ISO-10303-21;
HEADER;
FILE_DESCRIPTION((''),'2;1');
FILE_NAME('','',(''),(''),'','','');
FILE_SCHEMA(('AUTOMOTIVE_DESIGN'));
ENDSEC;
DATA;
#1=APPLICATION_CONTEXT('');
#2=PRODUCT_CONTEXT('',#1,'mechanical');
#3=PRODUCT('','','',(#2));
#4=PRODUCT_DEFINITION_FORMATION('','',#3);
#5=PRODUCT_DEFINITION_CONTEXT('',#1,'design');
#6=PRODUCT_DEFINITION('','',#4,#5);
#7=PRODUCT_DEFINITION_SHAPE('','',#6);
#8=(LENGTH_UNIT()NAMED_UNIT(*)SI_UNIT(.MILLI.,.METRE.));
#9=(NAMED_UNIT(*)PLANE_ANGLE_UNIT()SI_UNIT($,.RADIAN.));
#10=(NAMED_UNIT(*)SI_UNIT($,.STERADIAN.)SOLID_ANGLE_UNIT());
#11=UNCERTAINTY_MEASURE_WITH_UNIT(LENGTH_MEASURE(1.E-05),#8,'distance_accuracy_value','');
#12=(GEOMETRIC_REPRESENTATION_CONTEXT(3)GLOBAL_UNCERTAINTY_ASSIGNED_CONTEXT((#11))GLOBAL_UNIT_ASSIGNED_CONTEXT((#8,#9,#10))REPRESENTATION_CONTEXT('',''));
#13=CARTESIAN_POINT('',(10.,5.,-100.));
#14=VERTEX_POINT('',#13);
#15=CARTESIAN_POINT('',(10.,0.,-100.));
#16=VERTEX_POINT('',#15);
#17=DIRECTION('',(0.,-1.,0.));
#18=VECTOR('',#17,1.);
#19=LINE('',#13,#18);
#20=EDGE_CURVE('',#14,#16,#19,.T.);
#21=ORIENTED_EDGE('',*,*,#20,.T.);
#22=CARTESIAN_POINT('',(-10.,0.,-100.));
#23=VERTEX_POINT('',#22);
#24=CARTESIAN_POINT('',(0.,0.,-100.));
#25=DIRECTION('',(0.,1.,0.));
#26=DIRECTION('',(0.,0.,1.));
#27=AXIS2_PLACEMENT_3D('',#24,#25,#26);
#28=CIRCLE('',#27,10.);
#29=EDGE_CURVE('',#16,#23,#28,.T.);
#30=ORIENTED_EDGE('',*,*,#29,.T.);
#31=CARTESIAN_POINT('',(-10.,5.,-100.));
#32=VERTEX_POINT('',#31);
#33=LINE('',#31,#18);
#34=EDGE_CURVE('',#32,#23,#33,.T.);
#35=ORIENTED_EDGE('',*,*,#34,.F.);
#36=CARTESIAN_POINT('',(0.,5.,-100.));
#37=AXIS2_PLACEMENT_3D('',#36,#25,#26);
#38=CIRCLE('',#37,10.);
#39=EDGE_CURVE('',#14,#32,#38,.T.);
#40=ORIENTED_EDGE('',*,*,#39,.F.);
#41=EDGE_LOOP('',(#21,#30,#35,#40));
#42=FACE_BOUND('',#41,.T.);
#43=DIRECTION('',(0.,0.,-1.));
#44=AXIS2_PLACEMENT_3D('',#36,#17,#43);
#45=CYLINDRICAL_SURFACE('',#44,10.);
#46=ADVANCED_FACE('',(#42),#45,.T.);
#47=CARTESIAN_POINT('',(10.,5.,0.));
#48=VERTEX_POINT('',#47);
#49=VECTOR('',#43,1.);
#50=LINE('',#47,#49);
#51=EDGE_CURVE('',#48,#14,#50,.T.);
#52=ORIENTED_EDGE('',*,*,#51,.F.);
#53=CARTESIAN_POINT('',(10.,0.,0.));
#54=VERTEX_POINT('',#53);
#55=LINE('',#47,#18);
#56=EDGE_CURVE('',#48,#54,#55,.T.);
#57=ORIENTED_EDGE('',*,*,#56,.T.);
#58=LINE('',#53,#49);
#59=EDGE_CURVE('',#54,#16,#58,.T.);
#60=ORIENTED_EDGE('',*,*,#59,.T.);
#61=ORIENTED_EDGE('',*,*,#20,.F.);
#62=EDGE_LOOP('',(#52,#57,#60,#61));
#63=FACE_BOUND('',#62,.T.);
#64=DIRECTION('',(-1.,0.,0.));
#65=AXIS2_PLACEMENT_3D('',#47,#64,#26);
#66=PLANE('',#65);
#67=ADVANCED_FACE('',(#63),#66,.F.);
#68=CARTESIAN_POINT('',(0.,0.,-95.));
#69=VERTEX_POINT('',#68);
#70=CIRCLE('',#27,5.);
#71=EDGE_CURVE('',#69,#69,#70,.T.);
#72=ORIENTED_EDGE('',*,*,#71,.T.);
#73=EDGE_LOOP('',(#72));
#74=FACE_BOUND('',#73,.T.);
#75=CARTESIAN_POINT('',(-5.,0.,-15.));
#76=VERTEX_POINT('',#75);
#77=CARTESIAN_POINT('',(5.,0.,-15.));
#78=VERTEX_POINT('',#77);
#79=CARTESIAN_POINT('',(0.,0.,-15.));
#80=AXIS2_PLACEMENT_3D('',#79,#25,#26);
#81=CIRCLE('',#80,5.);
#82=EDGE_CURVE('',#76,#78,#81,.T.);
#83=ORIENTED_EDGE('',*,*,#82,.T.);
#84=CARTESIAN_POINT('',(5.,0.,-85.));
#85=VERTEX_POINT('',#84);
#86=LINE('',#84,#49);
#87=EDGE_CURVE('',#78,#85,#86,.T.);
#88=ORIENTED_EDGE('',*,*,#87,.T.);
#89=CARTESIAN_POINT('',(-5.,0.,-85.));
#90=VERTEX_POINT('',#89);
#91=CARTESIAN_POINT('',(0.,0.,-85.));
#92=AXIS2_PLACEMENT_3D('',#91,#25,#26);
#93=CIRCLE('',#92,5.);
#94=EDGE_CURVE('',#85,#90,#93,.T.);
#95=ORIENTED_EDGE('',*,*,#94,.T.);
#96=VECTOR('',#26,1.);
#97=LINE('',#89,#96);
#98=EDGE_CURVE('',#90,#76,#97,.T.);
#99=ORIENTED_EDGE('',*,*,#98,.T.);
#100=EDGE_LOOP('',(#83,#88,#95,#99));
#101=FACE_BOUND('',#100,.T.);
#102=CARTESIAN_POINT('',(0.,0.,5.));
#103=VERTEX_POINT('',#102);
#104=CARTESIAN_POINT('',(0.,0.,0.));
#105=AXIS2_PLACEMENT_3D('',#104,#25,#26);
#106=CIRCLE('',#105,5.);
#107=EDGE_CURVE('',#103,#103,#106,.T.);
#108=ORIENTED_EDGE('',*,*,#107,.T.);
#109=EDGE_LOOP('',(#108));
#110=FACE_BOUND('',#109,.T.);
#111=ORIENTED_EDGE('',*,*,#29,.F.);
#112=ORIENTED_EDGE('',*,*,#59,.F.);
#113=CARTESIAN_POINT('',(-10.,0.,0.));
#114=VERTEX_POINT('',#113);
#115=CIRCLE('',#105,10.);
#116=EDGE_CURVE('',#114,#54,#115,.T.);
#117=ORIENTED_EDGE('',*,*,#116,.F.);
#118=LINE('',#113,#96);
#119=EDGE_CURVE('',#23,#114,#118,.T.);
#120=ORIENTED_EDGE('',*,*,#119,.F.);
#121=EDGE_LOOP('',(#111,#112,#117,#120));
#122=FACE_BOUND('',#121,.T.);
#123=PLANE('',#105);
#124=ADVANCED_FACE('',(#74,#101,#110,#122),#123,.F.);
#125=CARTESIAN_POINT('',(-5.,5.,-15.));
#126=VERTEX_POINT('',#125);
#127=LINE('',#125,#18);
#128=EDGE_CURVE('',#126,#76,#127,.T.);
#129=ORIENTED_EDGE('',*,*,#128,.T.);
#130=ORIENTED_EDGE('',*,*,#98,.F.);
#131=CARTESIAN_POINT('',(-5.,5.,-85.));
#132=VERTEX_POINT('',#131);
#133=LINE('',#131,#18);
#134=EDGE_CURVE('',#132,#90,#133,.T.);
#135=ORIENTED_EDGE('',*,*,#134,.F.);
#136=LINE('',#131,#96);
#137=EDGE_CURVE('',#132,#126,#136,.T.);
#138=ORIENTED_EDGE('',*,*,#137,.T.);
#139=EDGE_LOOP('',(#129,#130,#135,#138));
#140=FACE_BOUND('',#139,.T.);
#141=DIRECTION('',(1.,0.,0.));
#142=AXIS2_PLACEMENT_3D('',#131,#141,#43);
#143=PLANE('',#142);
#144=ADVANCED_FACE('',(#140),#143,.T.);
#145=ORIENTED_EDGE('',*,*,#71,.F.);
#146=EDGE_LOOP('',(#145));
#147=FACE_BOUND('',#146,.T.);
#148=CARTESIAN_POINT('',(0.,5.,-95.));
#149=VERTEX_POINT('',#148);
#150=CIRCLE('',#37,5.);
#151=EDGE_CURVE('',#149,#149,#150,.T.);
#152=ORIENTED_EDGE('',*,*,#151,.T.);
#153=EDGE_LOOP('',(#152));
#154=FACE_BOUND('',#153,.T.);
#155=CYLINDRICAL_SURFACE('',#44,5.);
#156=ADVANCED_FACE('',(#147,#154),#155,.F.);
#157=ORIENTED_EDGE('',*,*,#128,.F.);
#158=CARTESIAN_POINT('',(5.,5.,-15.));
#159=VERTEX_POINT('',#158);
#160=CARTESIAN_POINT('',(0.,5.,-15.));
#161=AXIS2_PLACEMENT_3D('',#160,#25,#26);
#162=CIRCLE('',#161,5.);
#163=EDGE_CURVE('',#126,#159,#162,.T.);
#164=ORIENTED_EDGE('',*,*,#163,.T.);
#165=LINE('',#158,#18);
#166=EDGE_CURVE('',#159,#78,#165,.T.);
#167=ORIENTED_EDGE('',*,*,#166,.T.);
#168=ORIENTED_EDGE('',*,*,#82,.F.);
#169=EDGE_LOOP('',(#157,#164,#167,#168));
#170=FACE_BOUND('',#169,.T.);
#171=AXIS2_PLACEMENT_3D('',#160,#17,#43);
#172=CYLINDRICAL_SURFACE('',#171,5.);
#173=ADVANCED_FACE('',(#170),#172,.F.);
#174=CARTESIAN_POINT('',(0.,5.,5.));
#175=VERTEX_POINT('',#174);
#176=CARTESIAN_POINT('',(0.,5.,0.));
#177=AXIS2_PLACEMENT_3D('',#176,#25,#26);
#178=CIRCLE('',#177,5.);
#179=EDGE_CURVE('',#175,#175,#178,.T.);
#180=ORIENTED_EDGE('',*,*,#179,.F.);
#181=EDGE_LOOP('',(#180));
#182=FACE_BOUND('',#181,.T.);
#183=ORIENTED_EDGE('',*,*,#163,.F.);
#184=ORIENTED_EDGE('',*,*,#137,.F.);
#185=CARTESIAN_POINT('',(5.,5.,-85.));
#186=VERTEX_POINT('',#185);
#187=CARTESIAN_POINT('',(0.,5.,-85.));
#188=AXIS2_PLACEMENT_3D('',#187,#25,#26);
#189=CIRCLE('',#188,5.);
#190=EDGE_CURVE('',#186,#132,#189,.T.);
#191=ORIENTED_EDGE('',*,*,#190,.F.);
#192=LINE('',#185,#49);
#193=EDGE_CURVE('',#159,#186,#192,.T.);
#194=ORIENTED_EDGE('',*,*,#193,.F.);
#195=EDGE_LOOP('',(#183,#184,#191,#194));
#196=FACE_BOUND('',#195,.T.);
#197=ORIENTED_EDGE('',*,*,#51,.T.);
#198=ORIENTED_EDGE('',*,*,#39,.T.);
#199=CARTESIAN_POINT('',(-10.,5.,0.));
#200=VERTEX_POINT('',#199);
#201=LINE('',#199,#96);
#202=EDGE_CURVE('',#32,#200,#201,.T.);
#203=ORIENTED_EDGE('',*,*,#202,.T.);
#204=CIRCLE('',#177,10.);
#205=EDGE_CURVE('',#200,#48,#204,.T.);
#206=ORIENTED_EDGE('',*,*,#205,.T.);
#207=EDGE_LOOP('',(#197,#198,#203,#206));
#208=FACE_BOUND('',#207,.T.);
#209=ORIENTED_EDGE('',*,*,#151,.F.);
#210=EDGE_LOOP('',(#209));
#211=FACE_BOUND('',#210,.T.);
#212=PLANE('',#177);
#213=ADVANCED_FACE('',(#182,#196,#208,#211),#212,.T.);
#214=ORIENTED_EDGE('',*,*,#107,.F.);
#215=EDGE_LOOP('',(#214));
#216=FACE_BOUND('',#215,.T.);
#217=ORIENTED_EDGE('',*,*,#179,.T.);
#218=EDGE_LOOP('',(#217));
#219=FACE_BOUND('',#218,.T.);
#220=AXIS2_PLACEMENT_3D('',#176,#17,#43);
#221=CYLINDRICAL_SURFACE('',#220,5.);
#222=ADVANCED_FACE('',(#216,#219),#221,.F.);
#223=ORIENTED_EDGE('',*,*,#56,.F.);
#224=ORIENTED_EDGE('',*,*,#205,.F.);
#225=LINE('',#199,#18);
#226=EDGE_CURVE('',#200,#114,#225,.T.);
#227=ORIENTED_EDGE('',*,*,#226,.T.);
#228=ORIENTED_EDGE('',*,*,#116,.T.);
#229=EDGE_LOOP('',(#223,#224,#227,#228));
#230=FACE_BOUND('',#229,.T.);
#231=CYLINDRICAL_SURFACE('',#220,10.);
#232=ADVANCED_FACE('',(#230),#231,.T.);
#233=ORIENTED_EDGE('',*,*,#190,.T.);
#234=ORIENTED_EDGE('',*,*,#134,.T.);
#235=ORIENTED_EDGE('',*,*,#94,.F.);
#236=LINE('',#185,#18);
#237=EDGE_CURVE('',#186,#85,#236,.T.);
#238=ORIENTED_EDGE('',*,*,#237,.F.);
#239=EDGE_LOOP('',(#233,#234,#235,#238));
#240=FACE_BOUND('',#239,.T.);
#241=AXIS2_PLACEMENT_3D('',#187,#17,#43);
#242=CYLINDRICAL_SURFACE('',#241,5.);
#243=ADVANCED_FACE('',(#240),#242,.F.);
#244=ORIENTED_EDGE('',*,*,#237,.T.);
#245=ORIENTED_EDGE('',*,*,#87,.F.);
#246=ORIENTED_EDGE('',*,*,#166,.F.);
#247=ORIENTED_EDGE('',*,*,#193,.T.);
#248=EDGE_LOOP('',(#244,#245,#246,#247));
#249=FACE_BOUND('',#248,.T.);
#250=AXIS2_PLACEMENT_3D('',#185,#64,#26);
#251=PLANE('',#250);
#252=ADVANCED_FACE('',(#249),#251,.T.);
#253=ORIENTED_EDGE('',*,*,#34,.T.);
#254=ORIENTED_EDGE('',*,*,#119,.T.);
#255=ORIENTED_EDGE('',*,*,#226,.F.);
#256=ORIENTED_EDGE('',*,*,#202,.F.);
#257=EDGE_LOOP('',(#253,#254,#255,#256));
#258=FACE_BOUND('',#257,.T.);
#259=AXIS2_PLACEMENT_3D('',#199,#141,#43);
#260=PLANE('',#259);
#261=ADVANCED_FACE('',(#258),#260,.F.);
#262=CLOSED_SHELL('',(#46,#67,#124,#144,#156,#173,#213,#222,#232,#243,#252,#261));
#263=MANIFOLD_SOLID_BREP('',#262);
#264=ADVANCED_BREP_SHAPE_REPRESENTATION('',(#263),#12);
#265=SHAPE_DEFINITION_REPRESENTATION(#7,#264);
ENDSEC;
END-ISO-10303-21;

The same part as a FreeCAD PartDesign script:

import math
import FreeCAD as App
import Part
import Sketcher
from FreeCAD import Vector
Q = App.Units.Quantity

doc = App.newDocument("Part")
body = doc.addObject("PartDesign::Body", "Body")

sketch1 = body.newObject("Sketcher::SketchObject", "Sketch")
sketch1.AttachmentSupport = (doc.getObject("XZ_Plane"), [""])
sketch1.MapMode = "FlatFace"
sketch1.addGeometry([
    Part.LineSegment(Vector(-10, -100, 0), Vector(-10, 0, 0)),
    Part.ArcOfCircle(Part.Circle(Vector(0, 0, 0), Vector(0, 0, 1), 10), math.radians(0), math.radians(180)),
    Part.LineSegment(Vector(10, 0, 0), Vector(10, -100, 0)),
    Part.ArcOfCircle(Part.Circle(Vector(0, -100, 0), Vector(0, 0, 1), 10), math.radians(180), math.radians(360)),
    Part.Circle(Vector(0, 0, 0), Vector(0, 0, 1), 5),
    Part.LineSegment(Vector(5, -85, 0), Vector(5, -15, 0)),
    Part.ArcOfCircle(Part.Circle(Vector(0, -15, 0), Vector(0, 0, 1), 5), math.radians(0), math.radians(180)),
    Part.LineSegment(Vector(-5, -15, 0), Vector(-5, -85, 0)),
    Part.ArcOfCircle(Part.Circle(Vector(0, -85, 0), Vector(0, 0, 1), 5), math.radians(180), math.radians(360)),
    Part.Circle(Vector(0, -100, 0), Vector(0, 0, 1), 5),
], False)
sketch1.addConstraint([
    Sketcher.Constraint("Tangent", 0, 2, 1, 2),
    Sketcher.Constraint("Tangent", 1, 1, 2, 1),
    Sketcher.Constraint("Tangent", 2, 2, 3, 2),
    Sketcher.Constraint("Tangent", 3, 1, 0, 1),
    Sketcher.Constraint("Tangent", 5, 2, 6, 1),
    Sketcher.Constraint("Tangent", 6, 2, 7, 1),
    Sketcher.Constraint("Tangent", 7, 2, 8, 1),
    Sketcher.Constraint("Tangent", 8, 2, 5, 1),
    Sketcher.Constraint("Vertical", 0),
    Sketcher.Constraint("Vertical", 2),
    Sketcher.Constraint("Vertical", 5),
    Sketcher.Constraint("Vertical", 7),
    Sketcher.Constraint("Coincident", 1, 3, -1, 1),
    Sketcher.Constraint("Coincident", 4, 3, -1, 1),
    Sketcher.Constraint("Coincident", 9, 3, 3, 3),
    Sketcher.Constraint("Equal", 4, 6),
    Sketcher.Constraint("Equal", 8, 9),
    Sketcher.Constraint("PointOnObject", 6, 3, -2),
    Sketcher.Constraint("Diameter", 4, Q("10 mm")),
    Sketcher.Constraint("Radius", 1, Q("10 mm")),
    Sketcher.Constraint("DistanceY", 0, 1, 0, 2, Q("100 mm")),
    Sketcher.Constraint("DistanceY", 5, 1, 5, 2, Q("70 mm")),
    Sketcher.Constraint("DistanceY", 6, 3, -1, 1, Q("15 mm")),
])
pad1 = body.newObject("PartDesign::Pad", "Pad")
pad1.Profile = sketch1
pad1.Length = 5
pad1.Reversed = True

doc.recompute()
